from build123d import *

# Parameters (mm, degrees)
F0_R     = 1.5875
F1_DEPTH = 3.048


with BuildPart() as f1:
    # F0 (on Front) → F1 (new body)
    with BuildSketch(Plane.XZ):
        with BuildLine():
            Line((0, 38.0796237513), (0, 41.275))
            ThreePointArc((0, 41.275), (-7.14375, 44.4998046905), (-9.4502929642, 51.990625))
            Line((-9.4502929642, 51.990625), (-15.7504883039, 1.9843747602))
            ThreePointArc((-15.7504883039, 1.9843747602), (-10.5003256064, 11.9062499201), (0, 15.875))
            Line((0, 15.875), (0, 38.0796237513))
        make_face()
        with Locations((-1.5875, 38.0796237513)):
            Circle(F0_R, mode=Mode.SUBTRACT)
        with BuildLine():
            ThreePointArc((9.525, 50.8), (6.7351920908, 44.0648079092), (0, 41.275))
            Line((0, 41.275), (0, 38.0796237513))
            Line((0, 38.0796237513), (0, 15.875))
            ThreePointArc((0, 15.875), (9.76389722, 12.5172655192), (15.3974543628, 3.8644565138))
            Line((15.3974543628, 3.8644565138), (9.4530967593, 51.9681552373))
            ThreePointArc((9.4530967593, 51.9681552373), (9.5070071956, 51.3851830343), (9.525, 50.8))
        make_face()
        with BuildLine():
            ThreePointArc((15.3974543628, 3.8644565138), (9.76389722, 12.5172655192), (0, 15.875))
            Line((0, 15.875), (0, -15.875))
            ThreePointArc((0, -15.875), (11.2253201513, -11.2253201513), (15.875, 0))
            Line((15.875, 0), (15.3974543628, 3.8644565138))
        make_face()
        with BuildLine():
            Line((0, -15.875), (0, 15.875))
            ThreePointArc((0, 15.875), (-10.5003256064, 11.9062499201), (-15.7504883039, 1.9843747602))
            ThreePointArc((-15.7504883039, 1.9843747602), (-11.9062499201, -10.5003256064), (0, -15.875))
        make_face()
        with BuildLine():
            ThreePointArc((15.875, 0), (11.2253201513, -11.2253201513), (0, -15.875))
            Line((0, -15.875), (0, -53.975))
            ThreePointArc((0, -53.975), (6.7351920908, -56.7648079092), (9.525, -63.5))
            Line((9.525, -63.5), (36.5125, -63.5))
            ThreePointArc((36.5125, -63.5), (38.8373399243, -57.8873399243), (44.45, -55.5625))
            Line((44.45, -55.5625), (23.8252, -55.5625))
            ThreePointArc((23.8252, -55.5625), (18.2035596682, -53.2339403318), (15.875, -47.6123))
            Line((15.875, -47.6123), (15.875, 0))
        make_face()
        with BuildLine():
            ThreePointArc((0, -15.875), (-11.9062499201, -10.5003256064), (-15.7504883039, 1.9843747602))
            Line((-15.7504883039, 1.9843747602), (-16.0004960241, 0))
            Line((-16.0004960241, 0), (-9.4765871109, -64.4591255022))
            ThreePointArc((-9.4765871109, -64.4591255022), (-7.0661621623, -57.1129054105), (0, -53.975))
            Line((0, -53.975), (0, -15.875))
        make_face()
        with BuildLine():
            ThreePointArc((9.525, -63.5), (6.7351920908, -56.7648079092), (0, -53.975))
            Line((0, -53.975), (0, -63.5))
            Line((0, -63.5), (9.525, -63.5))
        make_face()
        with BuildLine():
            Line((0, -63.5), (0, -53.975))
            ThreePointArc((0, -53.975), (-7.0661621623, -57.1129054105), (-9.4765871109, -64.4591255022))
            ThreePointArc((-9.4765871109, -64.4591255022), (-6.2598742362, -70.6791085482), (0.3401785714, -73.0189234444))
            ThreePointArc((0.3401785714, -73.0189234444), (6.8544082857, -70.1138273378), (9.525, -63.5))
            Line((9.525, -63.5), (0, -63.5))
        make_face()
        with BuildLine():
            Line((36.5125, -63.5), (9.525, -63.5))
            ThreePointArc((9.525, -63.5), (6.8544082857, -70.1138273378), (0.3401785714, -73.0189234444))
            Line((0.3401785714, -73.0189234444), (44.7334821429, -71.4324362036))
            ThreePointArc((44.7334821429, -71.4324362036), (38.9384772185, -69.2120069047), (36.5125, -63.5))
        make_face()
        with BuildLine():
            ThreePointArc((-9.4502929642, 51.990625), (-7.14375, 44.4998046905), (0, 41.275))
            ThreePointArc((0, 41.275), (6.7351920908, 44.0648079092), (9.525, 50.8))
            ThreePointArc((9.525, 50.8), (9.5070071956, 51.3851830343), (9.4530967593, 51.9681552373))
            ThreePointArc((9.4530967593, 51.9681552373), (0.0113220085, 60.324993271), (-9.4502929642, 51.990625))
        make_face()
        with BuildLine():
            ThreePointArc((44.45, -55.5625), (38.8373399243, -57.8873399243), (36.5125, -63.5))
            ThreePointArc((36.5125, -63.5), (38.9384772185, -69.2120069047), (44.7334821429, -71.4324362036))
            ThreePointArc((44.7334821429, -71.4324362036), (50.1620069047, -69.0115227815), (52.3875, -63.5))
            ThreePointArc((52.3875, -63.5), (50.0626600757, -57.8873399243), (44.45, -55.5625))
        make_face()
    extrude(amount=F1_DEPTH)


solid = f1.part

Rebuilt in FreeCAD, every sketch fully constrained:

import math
import FreeCAD as App
import Part
import Sketcher
from FreeCAD import Vector
Q = App.Units.Quantity

doc = App.newDocument("Part")
body = doc.addObject("PartDesign::Body", "Body")

# Sketch on XZ plane
sketch1 = doc.addObject("Sketcher::SketchObject", "Sketch")
body.addObject(sketch1)
sketch1.AttachmentSupport = (doc.XZ_Plane, [""])
sketch1.MapMode = "FlatFace"
sketch1.addGeometry([
    Part.LineSegment(Vector(15.9, 0, 0), Vector(15.4, 3.9, 0)),  # 0
    Part.LineSegment(Vector(15.4, 3.9, 0), Vector(9.5, 52, 0)),  # 1
    Part.ArcOfCircle(Part.Circle(Vector(0, 50.8, 0), Vector(0, 0, 1), 9.5), math.radians(7), math.radians(173)),  # 2
    Part.LineSegment(Vector(-9.5, 52, 0), Vector(-15.8, 2, 0)),  # 3
    Part.LineSegment(Vector(-15.8, 2, 0), Vector(-16, 0, 0)),  # 4
    Part.LineSegment(Vector(-16, 0, 0), Vector(-9.5, -64.5, 0)),  # 5
    Part.ArcOfCircle(Part.Circle(Vector(0, -63.5, 0), Vector(0, 0, 1), 9.5), math.radians(-174), math.radians(-88)),  # 6
    Part.LineSegment(Vector(0.3, -73, 0), Vector(44.7, -71.4, 0)),  # 7
    Part.ArcOfCircle(Part.Circle(Vector(44.5, -63.5, 0), Vector(0, 0, 1), 7.9), math.radians(-88), math.radians(0)),  # 8
    Part.ArcOfCircle(Part.Circle(Vector(44.5, -63.5, 0), Vector(0, 0, 1), 7.9), math.radians(0), math.radians(90)),  # 9
    Part.LineSegment(Vector(44.5, -55.6, 0), Vector(23.8, -55.6, 0)),  # 10
    Part.ArcOfCircle(Part.Circle(Vector(23.8, -47.6, 0), Vector(0, 0, 1), 8), math.radians(180), math.radians(270)),  # 11
    Part.LineSegment(Vector(15.9, -47.6, 0), Vector(15.9, 0, 0)),  # 12
    Part.Circle(Vector(-1.6, 38.1, 0), Vector(0, 0, 1), 1.6),  # 13
], False)
sketch1.addConstraint([
    Sketcher.Constraint("Coincident", 0, 2, 1, 1),
    Sketcher.Constraint("Tangent", 1, 2, 2, 1),
    Sketcher.Constraint("Tangent", 2, 2, 3, 1),
    Sketcher.Constraint("Coincident", 3, 2, 4, 1),
    Sketcher.Constraint("Coincident", 4, 2, 5, 1),
    Sketcher.Constraint("Tangent", 5, 2, 6, 1),
    Sketcher.Constraint("Tangent", 6, 2, 7, 1),
    Sketcher.Constraint("Tangent", 7, 2, 8, 1),
    Sketcher.Constraint("Tangent", 8, 2, 9, 1),
    Sketcher.Constraint("Tangent", 9, 2, 10, 1),
    Sketcher.Constraint("Tangent", 10, 2, 11, 2),
    Sketcher.Constraint("Tangent", 11, 1, 12, 1),
    Sketcher.Constraint("Coincident", 12, 2, 0, 1),
    Sketcher.Constraint("Horizontal", 10),
    Sketcher.Constraint("Vertical", 12),
    Sketcher.Constraint("Equal", 2, 6),
    Sketcher.Constraint("Equal", 8, 9),
    Sketcher.Constraint("PointOnObject", 2, 3, -2),
    Sketcher.Constraint("PointOnObject", 6, 3, -2),
    Sketcher.Constraint("PointOnObject", 4, 2, -1),
    Sketcher.Constraint("PointOnObject", 12, 2, -1),
    Sketcher.Constraint("Parallel", 0, 1),
    Sketcher.Constraint("Parallel", 3, 4),
    Sketcher.Constraint("Horizontal", 6, 3, 8, 3),
    Sketcher.Constraint("Horizontal", 9, 3, 8, 2),
    Sketcher.Constraint("Diameter", 13, Q("0.125 in")),
    Sketcher.Constraint("DistanceY", -1, 1, 2, 3, Q("2 in")),
    Sketcher.Constraint("Radius", 2, Q("0.375 in")),
    Sketcher.Constraint("Radius", 8, Q("0.3125 in")),
    Sketcher.Constraint("Radius", 11, Q("0.313 in")),
    Sketcher.Constraint("DistanceY", 6, 3, -1, 1, Q("2.5 in")),
    Sketcher.Constraint("DistanceX", 10, 2, 10, 1, Q("0.812 in")),
    Sketcher.Constraint("DistanceX", -1, 1, 8, 3, Q("1.75 in")),
    Sketcher.Constraint("DistanceX", 13, 3, -1, 1, Q("0.0625 in")),
    Sketcher.Constraint("DistanceY", -1, 1, 2, 2, Q("2.046875 in")),
    Sketcher.Constraint("DistanceY", -1, 1, 3, 2, Q("0.078125 in")),
    Sketcher.Constraint("DistanceY", 0, 2, 1, 2, 48.103699),
    Sketcher.Constraint("DistanceY", 13, 3, 2, 2, 13.911001),
])
pad1 = doc.addObject("PartDesign::Pad", "Pad")
body.addObject(pad1)
pad1.Profile = sketch1
pad1.Length = Q("0.12 in")

doc.recompute()
